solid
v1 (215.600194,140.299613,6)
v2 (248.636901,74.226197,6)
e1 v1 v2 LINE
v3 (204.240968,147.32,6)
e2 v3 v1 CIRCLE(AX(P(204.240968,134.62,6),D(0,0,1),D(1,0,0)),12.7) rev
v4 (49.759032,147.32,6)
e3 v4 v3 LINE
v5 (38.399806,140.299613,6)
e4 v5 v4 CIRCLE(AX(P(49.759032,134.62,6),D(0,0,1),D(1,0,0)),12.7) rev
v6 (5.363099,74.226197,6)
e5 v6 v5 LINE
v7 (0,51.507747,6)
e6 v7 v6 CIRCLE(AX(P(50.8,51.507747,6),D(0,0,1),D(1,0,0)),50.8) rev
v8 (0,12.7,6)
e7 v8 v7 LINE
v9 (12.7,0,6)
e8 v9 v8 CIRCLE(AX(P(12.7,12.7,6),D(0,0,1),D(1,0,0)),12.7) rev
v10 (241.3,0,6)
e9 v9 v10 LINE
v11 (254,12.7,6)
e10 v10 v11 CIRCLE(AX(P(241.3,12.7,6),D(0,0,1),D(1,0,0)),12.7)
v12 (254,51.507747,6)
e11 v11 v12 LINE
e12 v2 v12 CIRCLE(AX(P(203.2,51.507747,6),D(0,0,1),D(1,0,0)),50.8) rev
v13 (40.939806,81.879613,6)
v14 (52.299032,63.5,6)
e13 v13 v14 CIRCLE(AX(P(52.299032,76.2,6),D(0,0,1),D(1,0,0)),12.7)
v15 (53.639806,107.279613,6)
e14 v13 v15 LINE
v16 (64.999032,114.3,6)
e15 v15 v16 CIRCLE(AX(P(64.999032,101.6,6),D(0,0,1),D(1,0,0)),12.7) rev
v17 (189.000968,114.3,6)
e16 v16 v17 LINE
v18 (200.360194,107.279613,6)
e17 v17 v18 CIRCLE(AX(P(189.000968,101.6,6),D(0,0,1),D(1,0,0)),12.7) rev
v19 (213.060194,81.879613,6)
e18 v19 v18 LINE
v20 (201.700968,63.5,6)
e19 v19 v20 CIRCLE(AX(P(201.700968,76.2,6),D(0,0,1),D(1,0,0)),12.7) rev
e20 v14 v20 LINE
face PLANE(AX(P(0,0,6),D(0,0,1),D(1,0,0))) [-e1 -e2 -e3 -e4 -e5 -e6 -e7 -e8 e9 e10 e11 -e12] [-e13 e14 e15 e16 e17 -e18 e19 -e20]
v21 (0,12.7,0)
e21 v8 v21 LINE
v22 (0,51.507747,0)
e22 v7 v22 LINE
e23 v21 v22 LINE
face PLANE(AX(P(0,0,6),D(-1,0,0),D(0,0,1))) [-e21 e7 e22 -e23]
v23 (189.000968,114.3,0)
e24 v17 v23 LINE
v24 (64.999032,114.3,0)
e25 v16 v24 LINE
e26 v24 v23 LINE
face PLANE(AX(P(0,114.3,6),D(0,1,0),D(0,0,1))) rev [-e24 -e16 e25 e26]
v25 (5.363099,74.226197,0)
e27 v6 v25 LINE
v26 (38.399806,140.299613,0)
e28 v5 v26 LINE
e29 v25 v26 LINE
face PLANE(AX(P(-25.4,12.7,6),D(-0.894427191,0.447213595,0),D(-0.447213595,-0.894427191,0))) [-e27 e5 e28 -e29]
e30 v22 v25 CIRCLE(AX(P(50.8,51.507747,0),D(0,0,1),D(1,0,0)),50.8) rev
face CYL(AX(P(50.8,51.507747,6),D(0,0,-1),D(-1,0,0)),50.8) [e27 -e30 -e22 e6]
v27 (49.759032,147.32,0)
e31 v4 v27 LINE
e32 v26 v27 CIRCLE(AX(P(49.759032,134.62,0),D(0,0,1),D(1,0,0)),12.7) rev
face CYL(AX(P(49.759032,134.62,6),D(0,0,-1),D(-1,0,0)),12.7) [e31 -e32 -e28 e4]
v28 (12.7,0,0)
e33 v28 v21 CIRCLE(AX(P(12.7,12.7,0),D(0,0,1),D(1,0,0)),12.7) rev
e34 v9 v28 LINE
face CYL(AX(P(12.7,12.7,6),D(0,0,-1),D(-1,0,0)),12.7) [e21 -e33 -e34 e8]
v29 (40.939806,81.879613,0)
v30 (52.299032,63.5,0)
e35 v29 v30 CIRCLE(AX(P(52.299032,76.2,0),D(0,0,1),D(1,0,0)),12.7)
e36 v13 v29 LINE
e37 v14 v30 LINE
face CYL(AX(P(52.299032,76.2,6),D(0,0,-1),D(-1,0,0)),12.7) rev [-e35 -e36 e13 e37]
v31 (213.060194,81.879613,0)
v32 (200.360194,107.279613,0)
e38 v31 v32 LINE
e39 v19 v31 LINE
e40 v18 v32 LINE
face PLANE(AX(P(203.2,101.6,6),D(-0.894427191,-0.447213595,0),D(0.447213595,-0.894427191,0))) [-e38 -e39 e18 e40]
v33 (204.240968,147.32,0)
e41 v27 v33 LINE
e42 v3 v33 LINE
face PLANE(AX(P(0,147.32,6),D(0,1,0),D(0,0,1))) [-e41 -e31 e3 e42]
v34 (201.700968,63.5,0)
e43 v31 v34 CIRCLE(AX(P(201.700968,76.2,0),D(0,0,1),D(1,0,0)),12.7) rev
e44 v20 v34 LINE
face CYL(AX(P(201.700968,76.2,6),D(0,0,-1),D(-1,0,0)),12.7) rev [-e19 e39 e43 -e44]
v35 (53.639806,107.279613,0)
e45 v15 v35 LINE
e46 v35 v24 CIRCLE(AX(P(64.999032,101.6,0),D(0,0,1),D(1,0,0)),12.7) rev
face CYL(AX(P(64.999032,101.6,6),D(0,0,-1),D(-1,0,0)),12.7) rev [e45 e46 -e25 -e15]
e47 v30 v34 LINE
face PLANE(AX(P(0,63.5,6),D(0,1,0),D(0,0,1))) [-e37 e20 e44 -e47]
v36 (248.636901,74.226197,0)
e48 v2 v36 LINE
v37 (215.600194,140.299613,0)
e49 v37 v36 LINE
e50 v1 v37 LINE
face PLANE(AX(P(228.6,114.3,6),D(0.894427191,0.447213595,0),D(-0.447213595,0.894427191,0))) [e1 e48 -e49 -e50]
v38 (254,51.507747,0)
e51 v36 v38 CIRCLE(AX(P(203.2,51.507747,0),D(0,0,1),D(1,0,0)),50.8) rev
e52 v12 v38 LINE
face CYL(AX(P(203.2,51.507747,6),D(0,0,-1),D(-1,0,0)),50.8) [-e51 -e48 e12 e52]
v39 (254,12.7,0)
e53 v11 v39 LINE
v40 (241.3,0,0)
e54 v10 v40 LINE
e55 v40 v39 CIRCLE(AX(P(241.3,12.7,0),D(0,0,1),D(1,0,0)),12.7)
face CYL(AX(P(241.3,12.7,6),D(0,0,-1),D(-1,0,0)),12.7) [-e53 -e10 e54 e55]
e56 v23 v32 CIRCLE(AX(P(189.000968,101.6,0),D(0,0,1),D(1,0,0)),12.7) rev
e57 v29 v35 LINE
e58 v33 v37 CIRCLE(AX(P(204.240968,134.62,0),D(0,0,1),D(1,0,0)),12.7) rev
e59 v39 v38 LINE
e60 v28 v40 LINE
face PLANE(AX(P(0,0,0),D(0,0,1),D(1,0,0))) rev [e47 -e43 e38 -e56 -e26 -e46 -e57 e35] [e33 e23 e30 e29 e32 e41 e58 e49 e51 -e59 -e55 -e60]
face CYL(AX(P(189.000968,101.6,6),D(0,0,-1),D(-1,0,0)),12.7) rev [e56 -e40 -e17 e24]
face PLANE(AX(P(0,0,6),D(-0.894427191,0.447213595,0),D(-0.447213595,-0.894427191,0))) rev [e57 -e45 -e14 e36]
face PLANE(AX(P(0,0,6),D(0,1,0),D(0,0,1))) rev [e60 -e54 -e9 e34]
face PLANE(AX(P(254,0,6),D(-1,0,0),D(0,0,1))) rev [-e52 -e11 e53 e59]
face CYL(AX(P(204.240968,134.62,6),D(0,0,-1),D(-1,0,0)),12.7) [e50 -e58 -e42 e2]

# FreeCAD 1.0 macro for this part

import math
import FreeCAD as App
import Part
import Sketcher
from FreeCAD import Vector
Q = App.Units.Quantity

doc = App.newDocument("Part")
body = doc.addObject("PartDesign::Body", "Body")

# Sketch on XY plane
sketch1 = body.newObject("Sketcher::SketchObject", "Sketch")
sketch1.AttachmentSupport = (doc.getObject("XY_Plane"), [""])
sketch1.MapMode = "FlatFace"
sketch1.addGeometry(Part.LineSegment(Vector(13, 0, 0), Vector(241, 0, 0)), False)
sketch1.addGeometry(Part.ArcOfCircle(Part.Circle(Vector(241, 13, 0), Vector(0, 0, 1), 13), math.radians(-90), math.radians(0)), False)
sketch1.addGeometry(Part.LineSegment(Vector(254, 13, 0), Vector(254, 52, 0)), False)
sketch1.addGeometry(Part.ArcOfCircle(Part.Circle(Vector(203, 52, 0), Vector(0, 0, 1), 51), math.radians(0), math.radians(27)), False)
sketch1.addGeometry(Part.LineSegment(Vector(249, 74, 0), Vector(216, 140, 0)), False)
sketch1.addGeometry(Part.ArcOfCircle(Part.Circle(Vector(204, 135, 0), Vector(0, 0, 1), 13), math.radians(27), math.radians(90)), False)
sketch1.addGeometry(Part.LineSegment(Vector(204, 147, 0), Vector(50, 147, 0)), False)
sketch1.addGeometry(Part.ArcOfCircle(Part.Circle(Vector(50, 135, 0), Vector(0, 0, 1), 13), math.radians(90), math.radians(153)), False)
sketch1.addGeometry(Part.LineSegment(Vector(38, 140, 0), Vector(5, 74, 0)), False)
sketch1.addGeometry(Part.ArcOfCircle(Part.Circle(Vector(51, 52, 0), Vector(0, 0, 1), 51), math.radians(153), math.radians(180)), False)
sketch1.addGeometry(Part.LineSegment(Vector(0, 52, 0), Vector(0, 13, 0)), False)
sketch1.addGeometry(Part.ArcOfCircle(Part.Circle(Vector(13, 13, 0), Vector(0, 0, 1), 13), math.radians(180), math.radians(270)), False)
sketch1.addGeometry(Part.ArcOfCircle(Part.Circle(Vector(52, 76, 0), Vector(0, 0, 1), 13), math.radians(153), math.radians(270)), False)
sketch1.addGeometry(Part.LineSegment(Vector(41, 82, 0), Vector(54, 107, 0)), False)
sketch1.addGeometry(Part.ArcOfCircle(Part.Circle(Vector(65, 102, 0), Vector(0, 0, 1), 13), math.radians(90), math.radians(153)), False)
sketch1.addGeometry(Part.LineSegment(Vector(65, 114, 0), Vector(189, 114, 0)), False)
sketch1.addGeometry(Part.ArcOfCircle(Part.Circle(Vector(189, 102, 0), Vector(0, 0, 1), 13), math.radians(27), math.radians(90)), False)
sketch1.addGeometry(Part.LineSegment(Vector(200, 107, 0), Vector(213, 82, 0)), False)
sketch1.addGeometry(Part.ArcOfCircle(Part.Circle(Vector(202, 76, 0), Vector(0, 0, 1), 13), math.radians(-90), math.radians(27)), False)
sketch1.addGeometry(Part.LineSegment(Vector(202, 64, 0), Vector(52, 64, 0)), False)
sketch1.addConstraint(Sketcher.Constraint("Tangent", 0, 2, 1, 1))
sketch1.addConstraint(Sketcher.Constraint("Tangent", 1, 2, 2, 1))
sketch1.addConstraint(Sketcher.Constraint("Tangent", 2, 2, 3, 1))
sketch1.addConstraint(Sketcher.Constraint("Tangent", 3, 2, 4, 1))
sketch1.addConstraint(Sketcher.Constraint("Tangent", 4, 2, 5, 1))
sketch1.addConstraint(Sketcher.Constraint("Tangent", 5, 2, 6, 1))
sketch1.addConstraint(Sketcher.Constraint("Tangent", 6, 2, 7, 1))
sketch1.addConstraint(Sketcher.Constraint("Tangent", 7, 2, 8, 1))
sketch1.addConstraint(Sketcher.Constraint("Tangent", 8, 2, 9, 1))
sketch1.addConstraint(Sketcher.Constraint("Tangent", 9, 2, 10, 1))
sketch1.addConstraint(Sketcher.Constraint("Tangent", 10, 2, 11, 1))
sketch1.addConstraint(Sketcher.Constraint("Tangent", 11, 2, 0, 1))
sketch1.addConstraint(Sketcher.Constraint("Tangent", 12, 1, 13, 1))
sketch1.addConstraint(Sketcher.Constraint("Tangent", 13, 2, 14, 2))
sketch1.addConstraint(Sketcher.Constraint("Tangent", 14, 1, 15, 1))
sketch1.addConstraint(Sketcher.Constraint("Tangent", 15, 2, 16, 2))
sketch1.addConstraint(Sketcher.Constraint("Tangent", 16, 1, 17, 1))
sketch1.addConstraint(Sketcher.Constraint("Tangent", 17, 2, 18, 2))
sketch1.addConstraint(Sketcher.Constraint("Tangent", 18, 1, 19, 1))
sketch1.addConstraint(Sketcher.Constraint("Tangent", 19, 2, 12, 2))
sketch1.addConstraint(Sketcher.Constraint("Horizontal", 0))
sketch1.addConstraint(Sketcher.Constraint("Vertical", 2))
sketch1.addConstraint(Sketcher.Constraint("Horizontal", 6))
sketch1.addConstraint(Sketcher.Constraint("Vertical", 10))
sketch1.addConstraint(Sketcher.Constraint("Horizontal", 15))
sketch1.addConstraint(Sketcher.Constraint("Horizontal", 19))
sketch1.addConstraint(Sketcher.Constraint("Equal", 1, 5))
sketch1.addConstraint(Sketcher.Constraint("Equal", 5, 7))
sketch1.addConstraint(Sketcher.Constraint("Equal", 3, 9))
sketch1.addConstraint(Sketcher.Constraint("Equal", 7, 11))
sketch1.addConstraint(Sketcher.Constraint("Equal", 11, 12))
sketch1.addConstraint(Sketcher.Constraint("Equal", 12, 14))
sketch1.addConstraint(Sketcher.Constraint("Equal", 14, 16))
sketch1.addConstraint(Sketcher.Constraint("Equal", 16, 18))
sketch1.addConstraint(Sketcher.Constraint("PointOnObject", 0, 2, -1))
sketch1.addConstraint(Sketcher.Constraint("PointOnObject", 9, 2, -2))
sketch1.addConstraint(Sketcher.Constraint("Parallel", 8, 13))
sketch1.addConstraint(Sketcher.Constraint("Parallel", 4, 17))
sketch1.addConstraint(Sketcher.Constraint("Horizontal", 3, 3, 9, 3))
sketch1.addConstraint(Sketcher.Constraint("Horizontal", 4, 2, 7, 2))
sketch1.addConstraint(Sketcher.Constraint("Radius", 3, Q("2 in")))
sketch1.addConstraint(Sketcher.Constraint("Radius", 1, Q("0.5 in")))
sketch1.addConstraint(Sketcher.Constraint("DistanceX", 0, 1, 0, 2, Q("9 in")))
sketch1.addConstraint(Sketcher.Constraint("DistanceY", -1, 1, 12, 3, Q("3 in")))
sketch1.addConstraint(Sketcher.Constraint("DistanceY", -1, 1, 14, 3, Q("4 in")))
sketch1.addConstraint(Sketcher.Constraint("DistanceY", -1, 1, 5, 3, Q("5.3 in")))
sketch1.addConstraint(Sketcher.Constraint("DistanceX", 7, 3, 12, 3, Q("0.1 in")))
sketch1.addConstraint(Sketcher.Constraint("DistanceX", 12, 3, 14, 3, Q("0.5 in")))
sketch1.addConstraint(Sketcher.Constraint("DistanceX", 16, 3, 5, 3, Q("0.6 in")))
sketch1.addConstraint(Sketcher.Constraint("DistanceX", 6, 2, 6, 1, 154.481937))
pad1 = body.newObject("PartDesign::Pad", "Pad")
pad1.Profile = sketch1
pad1.Length = 6

doc.recompute()
